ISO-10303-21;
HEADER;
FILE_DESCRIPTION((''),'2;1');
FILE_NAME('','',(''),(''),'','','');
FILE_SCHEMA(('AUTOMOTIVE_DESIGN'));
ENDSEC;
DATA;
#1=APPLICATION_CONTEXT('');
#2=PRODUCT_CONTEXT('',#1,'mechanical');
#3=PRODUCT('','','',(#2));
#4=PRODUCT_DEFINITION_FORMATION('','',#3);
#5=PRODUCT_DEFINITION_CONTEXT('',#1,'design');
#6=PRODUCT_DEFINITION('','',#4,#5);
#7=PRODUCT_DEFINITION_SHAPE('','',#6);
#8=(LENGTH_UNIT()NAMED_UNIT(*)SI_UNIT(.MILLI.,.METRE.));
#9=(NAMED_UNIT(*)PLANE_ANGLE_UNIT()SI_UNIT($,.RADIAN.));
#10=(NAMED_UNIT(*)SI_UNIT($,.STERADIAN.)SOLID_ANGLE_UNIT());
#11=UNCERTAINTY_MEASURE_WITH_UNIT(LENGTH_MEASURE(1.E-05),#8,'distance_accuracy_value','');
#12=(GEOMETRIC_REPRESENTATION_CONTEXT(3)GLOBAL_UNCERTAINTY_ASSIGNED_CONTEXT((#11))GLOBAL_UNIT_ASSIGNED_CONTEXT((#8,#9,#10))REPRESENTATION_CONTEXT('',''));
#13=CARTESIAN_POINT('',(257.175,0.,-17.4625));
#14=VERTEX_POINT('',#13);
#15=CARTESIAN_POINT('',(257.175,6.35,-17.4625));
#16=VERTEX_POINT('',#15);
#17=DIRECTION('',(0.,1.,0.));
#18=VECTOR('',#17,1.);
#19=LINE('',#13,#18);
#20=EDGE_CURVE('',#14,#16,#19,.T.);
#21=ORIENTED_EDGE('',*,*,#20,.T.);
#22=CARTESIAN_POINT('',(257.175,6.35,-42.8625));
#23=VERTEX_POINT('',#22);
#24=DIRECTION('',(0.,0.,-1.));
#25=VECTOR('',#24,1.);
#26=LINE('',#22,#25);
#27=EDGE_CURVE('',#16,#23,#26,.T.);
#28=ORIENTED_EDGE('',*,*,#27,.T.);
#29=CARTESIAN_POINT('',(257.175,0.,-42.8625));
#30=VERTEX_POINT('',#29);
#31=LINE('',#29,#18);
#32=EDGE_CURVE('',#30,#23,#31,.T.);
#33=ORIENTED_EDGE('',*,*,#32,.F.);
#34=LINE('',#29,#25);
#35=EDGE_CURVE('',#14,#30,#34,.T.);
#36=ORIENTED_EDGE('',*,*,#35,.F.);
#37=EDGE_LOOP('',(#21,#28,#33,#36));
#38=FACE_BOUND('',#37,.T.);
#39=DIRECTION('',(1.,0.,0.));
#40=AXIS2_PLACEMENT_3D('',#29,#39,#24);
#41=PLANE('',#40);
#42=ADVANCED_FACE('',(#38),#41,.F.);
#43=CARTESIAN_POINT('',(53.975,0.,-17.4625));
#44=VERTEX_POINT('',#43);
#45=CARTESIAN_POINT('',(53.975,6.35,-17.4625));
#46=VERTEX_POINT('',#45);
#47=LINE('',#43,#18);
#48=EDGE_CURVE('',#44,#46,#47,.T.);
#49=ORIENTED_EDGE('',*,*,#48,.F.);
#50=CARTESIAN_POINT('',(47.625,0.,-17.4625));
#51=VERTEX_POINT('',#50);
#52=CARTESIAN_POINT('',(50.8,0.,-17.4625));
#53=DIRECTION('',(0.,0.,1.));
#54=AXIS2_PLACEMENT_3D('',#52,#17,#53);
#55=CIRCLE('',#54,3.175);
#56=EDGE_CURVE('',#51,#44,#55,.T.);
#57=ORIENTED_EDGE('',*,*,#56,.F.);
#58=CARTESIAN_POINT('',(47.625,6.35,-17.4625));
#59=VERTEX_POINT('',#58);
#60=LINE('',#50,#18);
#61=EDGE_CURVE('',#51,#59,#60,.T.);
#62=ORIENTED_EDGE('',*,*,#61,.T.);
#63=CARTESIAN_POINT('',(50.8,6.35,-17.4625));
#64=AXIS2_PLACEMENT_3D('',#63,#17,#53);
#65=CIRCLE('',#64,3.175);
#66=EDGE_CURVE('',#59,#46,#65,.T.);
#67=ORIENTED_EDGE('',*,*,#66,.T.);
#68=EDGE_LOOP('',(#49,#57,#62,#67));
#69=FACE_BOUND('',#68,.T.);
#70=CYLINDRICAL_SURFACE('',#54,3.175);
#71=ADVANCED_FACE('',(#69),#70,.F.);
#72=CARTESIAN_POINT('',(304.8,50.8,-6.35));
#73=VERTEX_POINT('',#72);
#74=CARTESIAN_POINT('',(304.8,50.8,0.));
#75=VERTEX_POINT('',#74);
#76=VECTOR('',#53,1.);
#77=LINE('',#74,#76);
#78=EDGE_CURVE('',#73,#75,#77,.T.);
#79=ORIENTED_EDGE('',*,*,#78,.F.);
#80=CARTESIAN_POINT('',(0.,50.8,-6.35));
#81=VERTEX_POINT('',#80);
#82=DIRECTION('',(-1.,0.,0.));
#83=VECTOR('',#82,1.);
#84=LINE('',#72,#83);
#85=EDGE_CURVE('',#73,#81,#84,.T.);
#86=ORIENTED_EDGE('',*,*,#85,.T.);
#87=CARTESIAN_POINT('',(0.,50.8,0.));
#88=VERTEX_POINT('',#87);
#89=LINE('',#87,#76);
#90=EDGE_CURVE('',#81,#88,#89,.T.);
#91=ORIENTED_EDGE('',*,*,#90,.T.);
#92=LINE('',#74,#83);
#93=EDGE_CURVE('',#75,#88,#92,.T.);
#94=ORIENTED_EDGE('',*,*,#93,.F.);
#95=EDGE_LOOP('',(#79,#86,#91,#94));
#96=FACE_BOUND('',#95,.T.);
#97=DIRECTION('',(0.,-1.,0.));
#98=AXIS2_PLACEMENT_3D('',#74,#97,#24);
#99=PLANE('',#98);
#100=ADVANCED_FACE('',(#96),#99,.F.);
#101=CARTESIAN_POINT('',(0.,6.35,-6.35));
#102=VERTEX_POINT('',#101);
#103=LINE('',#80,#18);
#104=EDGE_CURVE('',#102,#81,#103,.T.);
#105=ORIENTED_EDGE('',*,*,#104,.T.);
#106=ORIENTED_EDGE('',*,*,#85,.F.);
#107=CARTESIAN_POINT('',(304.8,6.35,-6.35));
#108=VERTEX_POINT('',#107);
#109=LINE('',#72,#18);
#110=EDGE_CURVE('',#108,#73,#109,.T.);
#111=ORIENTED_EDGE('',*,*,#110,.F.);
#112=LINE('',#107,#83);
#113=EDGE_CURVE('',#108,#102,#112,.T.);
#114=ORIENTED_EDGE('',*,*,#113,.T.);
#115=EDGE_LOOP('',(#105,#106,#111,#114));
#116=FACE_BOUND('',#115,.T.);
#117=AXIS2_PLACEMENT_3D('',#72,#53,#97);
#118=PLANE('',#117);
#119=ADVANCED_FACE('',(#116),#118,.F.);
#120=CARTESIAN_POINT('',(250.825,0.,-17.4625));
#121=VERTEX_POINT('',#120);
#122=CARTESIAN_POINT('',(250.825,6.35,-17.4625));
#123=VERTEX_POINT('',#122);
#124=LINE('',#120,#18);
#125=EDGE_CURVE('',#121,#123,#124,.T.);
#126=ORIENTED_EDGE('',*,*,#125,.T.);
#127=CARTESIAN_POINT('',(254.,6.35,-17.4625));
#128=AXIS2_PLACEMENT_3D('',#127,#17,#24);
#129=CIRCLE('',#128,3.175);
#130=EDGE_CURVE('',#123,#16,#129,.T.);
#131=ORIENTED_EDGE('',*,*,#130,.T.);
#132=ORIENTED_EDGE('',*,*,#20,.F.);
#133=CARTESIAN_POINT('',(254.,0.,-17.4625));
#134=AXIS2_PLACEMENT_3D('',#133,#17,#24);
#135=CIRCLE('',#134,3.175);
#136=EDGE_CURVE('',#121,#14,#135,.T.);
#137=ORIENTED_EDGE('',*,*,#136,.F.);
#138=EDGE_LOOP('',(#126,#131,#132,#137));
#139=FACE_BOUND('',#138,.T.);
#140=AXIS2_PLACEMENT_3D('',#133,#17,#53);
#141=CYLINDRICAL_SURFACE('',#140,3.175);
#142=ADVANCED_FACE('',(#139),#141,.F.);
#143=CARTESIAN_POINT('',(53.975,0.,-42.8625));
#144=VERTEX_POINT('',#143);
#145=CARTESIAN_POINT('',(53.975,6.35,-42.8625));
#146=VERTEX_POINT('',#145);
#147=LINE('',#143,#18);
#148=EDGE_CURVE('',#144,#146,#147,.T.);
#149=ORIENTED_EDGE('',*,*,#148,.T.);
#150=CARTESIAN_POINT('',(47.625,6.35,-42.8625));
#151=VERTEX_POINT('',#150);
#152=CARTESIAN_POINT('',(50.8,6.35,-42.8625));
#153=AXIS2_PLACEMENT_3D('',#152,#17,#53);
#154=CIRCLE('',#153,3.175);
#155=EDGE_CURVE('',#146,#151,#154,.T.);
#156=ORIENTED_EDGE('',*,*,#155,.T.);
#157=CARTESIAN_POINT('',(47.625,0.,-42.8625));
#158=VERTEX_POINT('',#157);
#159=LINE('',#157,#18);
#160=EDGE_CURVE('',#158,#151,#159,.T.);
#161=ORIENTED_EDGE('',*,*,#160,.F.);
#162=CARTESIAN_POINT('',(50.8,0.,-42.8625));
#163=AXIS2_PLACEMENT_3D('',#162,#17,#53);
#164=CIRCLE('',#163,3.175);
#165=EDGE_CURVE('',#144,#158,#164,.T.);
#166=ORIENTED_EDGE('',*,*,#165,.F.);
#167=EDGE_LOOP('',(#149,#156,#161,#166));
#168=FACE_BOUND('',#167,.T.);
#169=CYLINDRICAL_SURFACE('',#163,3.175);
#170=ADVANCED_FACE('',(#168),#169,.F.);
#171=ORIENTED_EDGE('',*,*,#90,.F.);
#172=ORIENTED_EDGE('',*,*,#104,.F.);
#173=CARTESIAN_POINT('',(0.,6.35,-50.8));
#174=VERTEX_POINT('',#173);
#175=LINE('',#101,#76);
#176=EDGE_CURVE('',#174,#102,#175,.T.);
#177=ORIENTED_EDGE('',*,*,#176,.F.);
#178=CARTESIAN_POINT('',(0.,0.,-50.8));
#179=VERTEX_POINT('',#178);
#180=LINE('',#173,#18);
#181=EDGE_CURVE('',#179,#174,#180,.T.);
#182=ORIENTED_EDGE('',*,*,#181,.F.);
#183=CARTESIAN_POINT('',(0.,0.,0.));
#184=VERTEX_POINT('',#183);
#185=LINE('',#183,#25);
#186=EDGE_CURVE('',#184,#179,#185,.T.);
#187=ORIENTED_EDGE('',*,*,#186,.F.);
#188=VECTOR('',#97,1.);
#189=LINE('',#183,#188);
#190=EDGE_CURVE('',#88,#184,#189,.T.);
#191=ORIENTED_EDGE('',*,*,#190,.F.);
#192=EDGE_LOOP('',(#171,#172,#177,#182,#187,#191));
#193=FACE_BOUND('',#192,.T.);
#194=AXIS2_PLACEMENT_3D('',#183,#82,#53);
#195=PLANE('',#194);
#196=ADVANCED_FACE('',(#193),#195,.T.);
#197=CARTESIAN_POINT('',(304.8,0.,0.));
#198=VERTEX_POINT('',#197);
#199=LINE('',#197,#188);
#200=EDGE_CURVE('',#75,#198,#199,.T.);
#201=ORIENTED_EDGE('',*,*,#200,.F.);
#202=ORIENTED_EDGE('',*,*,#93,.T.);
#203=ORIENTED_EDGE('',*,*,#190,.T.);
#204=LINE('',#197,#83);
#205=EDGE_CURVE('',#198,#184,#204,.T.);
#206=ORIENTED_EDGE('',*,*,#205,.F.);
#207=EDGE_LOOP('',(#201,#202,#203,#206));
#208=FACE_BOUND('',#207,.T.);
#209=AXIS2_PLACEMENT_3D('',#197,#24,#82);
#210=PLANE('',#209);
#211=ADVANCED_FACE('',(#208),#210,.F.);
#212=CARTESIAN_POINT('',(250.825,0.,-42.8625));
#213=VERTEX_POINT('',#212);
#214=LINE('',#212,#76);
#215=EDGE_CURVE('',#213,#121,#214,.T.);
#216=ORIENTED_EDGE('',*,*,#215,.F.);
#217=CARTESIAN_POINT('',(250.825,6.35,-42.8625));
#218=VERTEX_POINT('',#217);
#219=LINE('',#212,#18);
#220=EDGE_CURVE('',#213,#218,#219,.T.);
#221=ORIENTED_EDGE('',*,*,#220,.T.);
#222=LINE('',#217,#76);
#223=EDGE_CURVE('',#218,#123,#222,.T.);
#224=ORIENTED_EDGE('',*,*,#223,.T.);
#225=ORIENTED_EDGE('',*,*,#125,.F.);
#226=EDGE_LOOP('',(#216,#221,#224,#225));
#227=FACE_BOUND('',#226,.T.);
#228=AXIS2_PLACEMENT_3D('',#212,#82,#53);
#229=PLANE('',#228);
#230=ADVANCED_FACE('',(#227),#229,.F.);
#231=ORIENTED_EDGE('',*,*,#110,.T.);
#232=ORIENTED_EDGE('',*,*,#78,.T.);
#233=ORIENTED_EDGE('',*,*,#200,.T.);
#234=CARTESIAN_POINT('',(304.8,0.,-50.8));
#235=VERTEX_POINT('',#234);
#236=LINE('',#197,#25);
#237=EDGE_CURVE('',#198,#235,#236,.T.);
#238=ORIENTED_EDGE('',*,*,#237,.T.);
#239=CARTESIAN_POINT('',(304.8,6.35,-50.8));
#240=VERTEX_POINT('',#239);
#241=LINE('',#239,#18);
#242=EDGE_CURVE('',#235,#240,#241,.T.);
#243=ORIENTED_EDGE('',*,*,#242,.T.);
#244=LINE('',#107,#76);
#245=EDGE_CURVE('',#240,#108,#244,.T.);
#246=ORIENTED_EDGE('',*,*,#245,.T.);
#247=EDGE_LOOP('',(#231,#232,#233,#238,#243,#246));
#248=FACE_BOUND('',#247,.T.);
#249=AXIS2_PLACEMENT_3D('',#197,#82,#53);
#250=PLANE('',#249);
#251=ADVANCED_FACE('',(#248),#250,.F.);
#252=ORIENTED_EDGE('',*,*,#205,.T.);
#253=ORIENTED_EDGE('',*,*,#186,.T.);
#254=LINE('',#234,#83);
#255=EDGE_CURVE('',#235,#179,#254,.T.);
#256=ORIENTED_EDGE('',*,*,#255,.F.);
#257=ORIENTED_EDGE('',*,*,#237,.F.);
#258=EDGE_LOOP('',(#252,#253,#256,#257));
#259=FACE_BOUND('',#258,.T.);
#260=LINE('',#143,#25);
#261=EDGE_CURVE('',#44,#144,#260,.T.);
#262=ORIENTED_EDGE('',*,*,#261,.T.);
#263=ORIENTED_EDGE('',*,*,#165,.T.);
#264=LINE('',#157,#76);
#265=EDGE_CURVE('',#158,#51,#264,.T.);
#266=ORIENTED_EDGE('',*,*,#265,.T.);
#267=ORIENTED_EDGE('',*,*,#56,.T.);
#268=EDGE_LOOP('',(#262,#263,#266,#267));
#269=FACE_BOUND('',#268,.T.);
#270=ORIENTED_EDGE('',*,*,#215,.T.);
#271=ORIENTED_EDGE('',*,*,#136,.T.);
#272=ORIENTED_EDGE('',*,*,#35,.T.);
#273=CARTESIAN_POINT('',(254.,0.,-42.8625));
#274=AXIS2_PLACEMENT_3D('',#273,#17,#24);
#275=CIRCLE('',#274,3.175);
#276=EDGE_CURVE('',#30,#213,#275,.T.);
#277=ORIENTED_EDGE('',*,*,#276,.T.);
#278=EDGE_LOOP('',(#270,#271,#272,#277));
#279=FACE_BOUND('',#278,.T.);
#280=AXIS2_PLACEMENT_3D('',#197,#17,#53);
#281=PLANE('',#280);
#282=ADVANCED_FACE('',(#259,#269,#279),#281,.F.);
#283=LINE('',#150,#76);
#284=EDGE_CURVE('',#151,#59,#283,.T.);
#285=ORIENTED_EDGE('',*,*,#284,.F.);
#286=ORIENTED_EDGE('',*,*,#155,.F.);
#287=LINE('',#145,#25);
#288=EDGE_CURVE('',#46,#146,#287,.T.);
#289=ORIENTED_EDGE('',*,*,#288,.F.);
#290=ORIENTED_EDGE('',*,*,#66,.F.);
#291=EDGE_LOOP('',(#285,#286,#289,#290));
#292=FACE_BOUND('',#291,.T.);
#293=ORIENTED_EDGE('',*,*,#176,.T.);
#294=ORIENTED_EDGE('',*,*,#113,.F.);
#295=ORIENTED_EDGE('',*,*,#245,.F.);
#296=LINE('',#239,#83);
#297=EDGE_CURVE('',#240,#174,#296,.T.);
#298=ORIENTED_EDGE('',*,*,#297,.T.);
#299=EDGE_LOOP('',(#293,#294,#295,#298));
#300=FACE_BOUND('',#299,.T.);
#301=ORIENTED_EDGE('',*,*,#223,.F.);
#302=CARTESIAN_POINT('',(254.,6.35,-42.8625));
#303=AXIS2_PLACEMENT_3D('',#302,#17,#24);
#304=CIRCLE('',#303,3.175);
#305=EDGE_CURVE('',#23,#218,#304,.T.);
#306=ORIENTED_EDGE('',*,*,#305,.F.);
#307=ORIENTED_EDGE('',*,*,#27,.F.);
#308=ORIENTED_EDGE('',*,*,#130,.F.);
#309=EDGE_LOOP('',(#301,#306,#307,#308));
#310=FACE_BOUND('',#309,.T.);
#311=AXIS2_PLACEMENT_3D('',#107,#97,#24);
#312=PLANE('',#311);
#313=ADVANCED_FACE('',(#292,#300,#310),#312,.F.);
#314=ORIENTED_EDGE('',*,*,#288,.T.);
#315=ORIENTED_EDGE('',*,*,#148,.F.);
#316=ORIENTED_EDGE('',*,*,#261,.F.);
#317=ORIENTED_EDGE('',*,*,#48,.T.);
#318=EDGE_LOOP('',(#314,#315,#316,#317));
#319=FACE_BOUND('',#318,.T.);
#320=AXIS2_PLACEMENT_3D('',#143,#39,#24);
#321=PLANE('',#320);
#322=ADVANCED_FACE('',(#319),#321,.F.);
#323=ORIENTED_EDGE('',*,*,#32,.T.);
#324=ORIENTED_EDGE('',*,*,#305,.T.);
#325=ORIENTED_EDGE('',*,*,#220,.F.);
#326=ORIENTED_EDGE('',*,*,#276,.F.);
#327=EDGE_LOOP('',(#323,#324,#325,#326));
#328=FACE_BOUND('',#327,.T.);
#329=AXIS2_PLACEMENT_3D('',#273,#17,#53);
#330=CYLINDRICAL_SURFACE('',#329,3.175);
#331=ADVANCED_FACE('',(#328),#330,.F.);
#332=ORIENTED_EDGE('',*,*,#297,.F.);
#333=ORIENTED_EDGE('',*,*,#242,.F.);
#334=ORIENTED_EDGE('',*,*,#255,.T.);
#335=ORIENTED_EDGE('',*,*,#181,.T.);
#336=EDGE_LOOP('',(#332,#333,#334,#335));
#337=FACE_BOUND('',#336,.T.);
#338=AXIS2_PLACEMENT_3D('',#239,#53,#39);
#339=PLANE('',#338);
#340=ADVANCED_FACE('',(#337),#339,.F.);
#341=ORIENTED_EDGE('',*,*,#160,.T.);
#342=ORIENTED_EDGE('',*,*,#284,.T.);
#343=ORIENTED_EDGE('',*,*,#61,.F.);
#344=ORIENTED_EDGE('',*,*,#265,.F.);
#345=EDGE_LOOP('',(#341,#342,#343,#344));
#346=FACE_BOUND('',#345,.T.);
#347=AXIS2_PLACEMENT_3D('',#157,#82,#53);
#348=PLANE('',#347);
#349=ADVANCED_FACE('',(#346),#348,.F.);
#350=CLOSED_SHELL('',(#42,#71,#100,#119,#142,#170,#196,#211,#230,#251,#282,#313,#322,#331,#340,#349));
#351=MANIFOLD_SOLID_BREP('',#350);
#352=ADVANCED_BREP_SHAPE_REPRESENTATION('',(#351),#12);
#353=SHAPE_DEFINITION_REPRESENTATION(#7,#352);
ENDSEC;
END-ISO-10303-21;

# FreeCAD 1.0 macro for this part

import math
import FreeCAD as App
import Part
import Sketcher
from FreeCAD import Vector
Q = App.Units.Quantity


def add_polygon(sketch, points):
    """Adds a closed chain of lines whose ends are joined by coincident constraints."""
    first, n = sketch.GeometryCount, len(points)
    for a, b in zip(points, points[1:] + points[:1]):
        sketch.addGeometry(Part.LineSegment(App.Vector(*a, 0), App.Vector(*b, 0)), False)
    for i in range(n):
        sketch.addConstraint(Sketcher.Constraint("Coincident", first + i, 2, first + (i + 1) % n, 1))

doc = App.newDocument("Part")
body = doc.addObject("PartDesign::Body", "Body")

# Sketch on YZ plane
sketch1 = body.newObject("Sketcher::SketchObject", "Sketch")
sketch1.AttachmentSupport = (doc.getObject("YZ_Plane"), [""])
sketch1.MapMode = "FlatFace"
add_polygon(sketch1, [(0, 0), (0, -50.8), (6.35, -50.8), (6.35, -6.35), (50.8, -6.35), (50.8, 0)])  # lines 0-5
sketch1.addConstraint([
    Sketcher.Constraint("Vertical", 0),
    Sketcher.Constraint("Horizontal", 1),
    Sketcher.Constraint("Vertical", 2),
    Sketcher.Constraint("Horizontal", 3),
    Sketcher.Constraint("Vertical", 4),
    Sketcher.Constraint("Horizontal", 5),
    Sketcher.Constraint("Coincident", 5, 2, -1, 1),
    Sketcher.Constraint("Equal", 5, 0),
    Sketcher.Constraint("Equal", 3, 2),
    Sketcher.Constraint("DistanceX", 5, 2, 5, 1, Q("2 in")),
    Sketcher.Constraint("DistanceX", 1, 1, 1, 2, Q("0.25 in")),
])
pad1 = body.newObject("PartDesign::Pad", "Pad")
pad1.Profile = sketch1
pad1.Length = Q("12 in")

# Sketch on XZ plane
sketch2 = body.newObject("Sketcher::SketchObject", "Sketch001")
sketch2.AttachmentSupport = (doc.getObject("XZ_Plane"), [""])
sketch2.MapMode = "FlatFace"
sketch2.AttachmentOffset = App.Placement(Vector(0, 0, -0.25 * 25.4), App.Rotation())
sketch2.addGeometry([
    Part.LineSegment(Vector(53.975, -17.4625, 0), Vector(53.975, -42.8625, 0)),  # 0
    Part.ArcOfCircle(Part.Circle(Vector(50.8, -42.8625, 0), Vector(0, 0, 1), 3.175), math.radians(180), math.radians(360)),  # 1
    Part.LineSegment(Vector(47.625, -42.8625, 0), Vector(47.625, -17.4625, 0)),  # 2
    Part.ArcOfCircle(Part.Circle(Vector(50.8, -17.4625, 0), Vector(0, 0, 1), 3.175), math.radians(0), math.radians(180)),  # 3
    Part.LineSegment(Vector(250.825, -42.8625, 0), Vector(250.825, -17.4625, 0)),  # 4
    Part.ArcOfCircle(Part.Circle(Vector(254, -17.4625, 0), Vector(0, 0, 1), 3.175), math.radians(0), math.radians(180)),  # 5
    Part.LineSegment(Vector(257.175, -17.4625, 0), Vector(257.175, -42.8625, 0)),  # 6
    Part.ArcOfCircle(Part.Circle(Vector(254, -42.8625, 0), Vector(0, 0, 1), 3.175), math.radians(180), math.radians(360)),  # 7
], False)
sketch2.addConstraint([
    Sketcher.Constraint("Tangent", 0, 2, 1, 2),
    Sketcher.Constraint("Tangent", 1, 1, 2, 1),
    Sketcher.Constraint("Tangent", 2, 2, 3, 2),
    Sketcher.Constraint("Tangent", 3, 1, 0, 1),
    Sketcher.Constraint("Tangent", 4, 2, 5, 2),
    Sketcher.Constraint("Tangent", 5, 1, 6, 1),
    Sketcher.Constraint("Tangent", 6, 2, 7, 2),
    Sketcher.Constraint("Tangent", 7, 1, 4, 1),
    Sketcher.Constraint("Vertical", 0),
    Sketcher.Constraint("Vertical", 2),
    Sketcher.Constraint("Vertical", 4),
    Sketcher.Constraint("Vertical", 6),
    Sketcher.Constraint("Equal", 3, 5),
    Sketcher.Constraint("Horizontal", 3, 3, 5, 3),
    Sketcher.Constraint("Horizontal", 1, 3, 7, 3),
    Sketcher.Constraint("DistanceY", 0, 2, 0, 1, Q("1 in")),
    Sketcher.Constraint("DistanceX", -1, 1, 1, 3, Q("2 in")),
    Sketcher.Constraint("DistanceX", -1, 1, 5, 3, Q("10 in")),
    Sketcher.Constraint("Radius", 1, Q("0.125 in")),
    Sketcher.Constraint("DistanceY", 1, 3, -1, 1, Q("1.6875 in")),
])
pocket1 = body.newObject("PartDesign::Pocket", "Pocket")
pocket1.Profile = sketch2
pocket1.Type = "ThroughAll"
pocket1.Reversed = True

doc.recompute()
